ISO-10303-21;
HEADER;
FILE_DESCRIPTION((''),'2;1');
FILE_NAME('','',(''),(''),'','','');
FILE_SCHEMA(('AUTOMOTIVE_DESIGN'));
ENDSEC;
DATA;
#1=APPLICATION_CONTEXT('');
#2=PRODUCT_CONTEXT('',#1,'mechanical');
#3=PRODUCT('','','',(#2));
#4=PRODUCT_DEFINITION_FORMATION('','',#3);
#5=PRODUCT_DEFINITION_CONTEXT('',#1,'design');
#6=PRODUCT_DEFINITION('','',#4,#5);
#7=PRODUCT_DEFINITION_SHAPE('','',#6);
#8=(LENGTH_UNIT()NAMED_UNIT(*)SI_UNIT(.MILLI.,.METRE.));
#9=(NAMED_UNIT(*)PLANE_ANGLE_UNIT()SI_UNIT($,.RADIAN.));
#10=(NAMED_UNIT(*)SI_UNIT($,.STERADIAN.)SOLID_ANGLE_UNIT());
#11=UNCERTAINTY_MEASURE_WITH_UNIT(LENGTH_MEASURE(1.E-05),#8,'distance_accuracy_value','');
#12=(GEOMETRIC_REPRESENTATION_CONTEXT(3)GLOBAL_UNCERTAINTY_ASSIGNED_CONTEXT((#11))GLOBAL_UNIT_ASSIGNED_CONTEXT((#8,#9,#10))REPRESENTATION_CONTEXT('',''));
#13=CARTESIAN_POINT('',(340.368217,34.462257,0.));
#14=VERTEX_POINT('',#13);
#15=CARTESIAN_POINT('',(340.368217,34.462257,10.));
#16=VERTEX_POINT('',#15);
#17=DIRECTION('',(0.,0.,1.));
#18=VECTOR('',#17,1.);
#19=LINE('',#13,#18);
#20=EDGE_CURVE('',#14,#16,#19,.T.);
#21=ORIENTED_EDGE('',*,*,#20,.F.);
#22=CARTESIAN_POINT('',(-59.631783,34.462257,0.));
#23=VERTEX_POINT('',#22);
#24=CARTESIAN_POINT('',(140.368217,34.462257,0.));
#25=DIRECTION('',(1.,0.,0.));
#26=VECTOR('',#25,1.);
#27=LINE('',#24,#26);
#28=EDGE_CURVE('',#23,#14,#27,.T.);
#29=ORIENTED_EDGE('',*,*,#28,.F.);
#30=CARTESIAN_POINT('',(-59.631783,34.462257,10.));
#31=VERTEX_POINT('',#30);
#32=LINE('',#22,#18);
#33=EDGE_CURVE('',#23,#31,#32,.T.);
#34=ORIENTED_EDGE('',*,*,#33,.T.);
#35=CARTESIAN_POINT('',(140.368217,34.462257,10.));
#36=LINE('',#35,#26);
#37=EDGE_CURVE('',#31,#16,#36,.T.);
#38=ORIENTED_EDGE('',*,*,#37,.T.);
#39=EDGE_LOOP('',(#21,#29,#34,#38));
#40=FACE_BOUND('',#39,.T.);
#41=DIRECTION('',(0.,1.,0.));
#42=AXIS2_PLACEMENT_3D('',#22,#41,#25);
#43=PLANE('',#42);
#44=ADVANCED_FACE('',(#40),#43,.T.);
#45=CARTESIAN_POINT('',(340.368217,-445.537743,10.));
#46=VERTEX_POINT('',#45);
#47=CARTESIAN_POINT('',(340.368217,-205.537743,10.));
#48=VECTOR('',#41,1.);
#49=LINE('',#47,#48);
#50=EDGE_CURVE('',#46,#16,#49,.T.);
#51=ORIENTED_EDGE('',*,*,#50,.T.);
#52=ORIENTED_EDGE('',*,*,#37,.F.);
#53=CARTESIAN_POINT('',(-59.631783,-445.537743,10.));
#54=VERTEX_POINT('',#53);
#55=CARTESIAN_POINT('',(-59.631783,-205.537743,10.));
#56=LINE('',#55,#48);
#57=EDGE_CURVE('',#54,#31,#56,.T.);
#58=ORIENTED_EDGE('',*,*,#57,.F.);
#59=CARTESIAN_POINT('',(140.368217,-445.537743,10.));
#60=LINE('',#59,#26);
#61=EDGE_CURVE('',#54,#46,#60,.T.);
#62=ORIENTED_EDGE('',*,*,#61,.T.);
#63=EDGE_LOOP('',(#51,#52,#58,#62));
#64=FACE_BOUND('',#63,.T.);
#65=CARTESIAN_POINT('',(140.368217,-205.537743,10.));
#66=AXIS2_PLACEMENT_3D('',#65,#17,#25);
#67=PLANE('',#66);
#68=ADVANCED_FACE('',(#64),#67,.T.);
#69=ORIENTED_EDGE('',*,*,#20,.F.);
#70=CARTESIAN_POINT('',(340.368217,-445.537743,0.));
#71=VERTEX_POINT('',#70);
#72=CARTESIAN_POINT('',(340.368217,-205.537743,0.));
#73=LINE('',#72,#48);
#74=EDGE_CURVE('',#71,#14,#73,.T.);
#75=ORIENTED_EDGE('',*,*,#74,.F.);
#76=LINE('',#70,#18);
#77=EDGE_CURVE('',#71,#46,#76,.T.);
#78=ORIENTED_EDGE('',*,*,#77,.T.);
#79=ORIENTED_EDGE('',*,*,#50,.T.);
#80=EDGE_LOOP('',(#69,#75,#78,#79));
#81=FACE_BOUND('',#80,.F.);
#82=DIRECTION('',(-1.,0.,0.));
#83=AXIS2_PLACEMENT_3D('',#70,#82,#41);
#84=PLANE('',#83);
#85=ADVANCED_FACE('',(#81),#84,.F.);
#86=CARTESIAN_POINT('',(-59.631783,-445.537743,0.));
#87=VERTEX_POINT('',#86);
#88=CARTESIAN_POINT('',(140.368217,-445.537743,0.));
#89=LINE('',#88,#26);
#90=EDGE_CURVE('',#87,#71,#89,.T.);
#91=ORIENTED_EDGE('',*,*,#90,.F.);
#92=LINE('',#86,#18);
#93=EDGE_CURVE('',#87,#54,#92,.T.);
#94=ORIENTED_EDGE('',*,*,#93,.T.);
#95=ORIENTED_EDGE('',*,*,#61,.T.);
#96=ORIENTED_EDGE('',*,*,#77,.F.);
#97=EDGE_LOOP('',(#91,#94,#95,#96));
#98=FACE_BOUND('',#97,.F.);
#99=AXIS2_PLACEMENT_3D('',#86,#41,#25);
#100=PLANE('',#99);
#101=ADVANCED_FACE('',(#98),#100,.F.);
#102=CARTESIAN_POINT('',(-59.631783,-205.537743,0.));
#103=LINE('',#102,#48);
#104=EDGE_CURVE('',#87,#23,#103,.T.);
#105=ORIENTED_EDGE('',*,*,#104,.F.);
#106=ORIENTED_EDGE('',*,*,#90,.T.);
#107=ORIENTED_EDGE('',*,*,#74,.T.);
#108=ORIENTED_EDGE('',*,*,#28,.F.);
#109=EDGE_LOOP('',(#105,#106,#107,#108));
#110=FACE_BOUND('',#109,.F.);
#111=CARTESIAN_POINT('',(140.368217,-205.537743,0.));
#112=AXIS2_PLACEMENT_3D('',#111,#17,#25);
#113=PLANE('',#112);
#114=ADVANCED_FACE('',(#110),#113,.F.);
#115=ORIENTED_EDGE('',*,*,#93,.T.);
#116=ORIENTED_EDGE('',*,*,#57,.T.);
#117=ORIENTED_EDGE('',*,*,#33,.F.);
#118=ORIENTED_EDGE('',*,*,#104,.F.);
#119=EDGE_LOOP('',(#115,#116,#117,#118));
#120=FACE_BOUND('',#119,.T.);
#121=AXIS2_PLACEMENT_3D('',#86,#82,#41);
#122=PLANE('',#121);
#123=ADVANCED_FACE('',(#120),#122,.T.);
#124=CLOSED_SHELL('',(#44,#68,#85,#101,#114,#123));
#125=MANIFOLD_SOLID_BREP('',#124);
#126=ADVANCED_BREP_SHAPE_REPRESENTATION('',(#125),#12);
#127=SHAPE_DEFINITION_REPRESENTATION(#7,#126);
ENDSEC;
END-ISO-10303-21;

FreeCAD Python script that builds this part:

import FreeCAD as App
import Part
import Sketcher


def add_polygon(sketch, points):
    """Adds a closed chain of lines whose ends are joined by coincident constraints."""
    first, n = sketch.GeometryCount, len(points)
    for a, b in zip(points, points[1:] + points[:1]):
        sketch.addGeometry(Part.LineSegment(App.Vector(*a, 0), App.Vector(*b, 0)), False)
    for i in range(n):
        sketch.addConstraint(Sketcher.Constraint("Coincident", first + i, 2, first + (i + 1) % n, 1))

doc = App.newDocument("Part")
body = doc.addObject("PartDesign::Body", "Body")

# Sketch on XY plane
sketch1 = doc.addObject("Sketcher::SketchObject", "Sketch")
body.addObject(sketch1)
sketch1.AttachmentSupport = (doc.XY_Plane, [""])
sketch1.MapMode = "FlatFace"
add_polygon(sketch1, [(-60, 34), (-60, -446), (340, -446), (340, 34)])  # lines 0-3
sketch1.addConstraint(Sketcher.Constraint("Vertical", 0))
sketch1.addConstraint(Sketcher.Constraint("Horizontal", 1))
sketch1.addConstraint(Sketcher.Constraint("Vertical", 2))
sketch1.addConstraint(Sketcher.Constraint("Horizontal", 3))
sketch1.addConstraint(Sketcher.Constraint("DistanceX", 1, 1, 1, 2, 400.0))
sketch1.addConstraint(Sketcher.Constraint("DistanceY", 0, 2, 0, 1, 480.0))
sketch1.addConstraint(Sketcher.Constraint("DistanceX", 0, 2, -1, 1, 59.631783))
sketch1.addConstraint(Sketcher.Constraint("DistanceY", 0, 2, -1, 1, 445.537743))
pad1 = doc.addObject("PartDesign::Pad", "Pad")
body.addObject(pad1)
pad1.Profile = sketch1
pad1.Length = 10

doc.recompute()
